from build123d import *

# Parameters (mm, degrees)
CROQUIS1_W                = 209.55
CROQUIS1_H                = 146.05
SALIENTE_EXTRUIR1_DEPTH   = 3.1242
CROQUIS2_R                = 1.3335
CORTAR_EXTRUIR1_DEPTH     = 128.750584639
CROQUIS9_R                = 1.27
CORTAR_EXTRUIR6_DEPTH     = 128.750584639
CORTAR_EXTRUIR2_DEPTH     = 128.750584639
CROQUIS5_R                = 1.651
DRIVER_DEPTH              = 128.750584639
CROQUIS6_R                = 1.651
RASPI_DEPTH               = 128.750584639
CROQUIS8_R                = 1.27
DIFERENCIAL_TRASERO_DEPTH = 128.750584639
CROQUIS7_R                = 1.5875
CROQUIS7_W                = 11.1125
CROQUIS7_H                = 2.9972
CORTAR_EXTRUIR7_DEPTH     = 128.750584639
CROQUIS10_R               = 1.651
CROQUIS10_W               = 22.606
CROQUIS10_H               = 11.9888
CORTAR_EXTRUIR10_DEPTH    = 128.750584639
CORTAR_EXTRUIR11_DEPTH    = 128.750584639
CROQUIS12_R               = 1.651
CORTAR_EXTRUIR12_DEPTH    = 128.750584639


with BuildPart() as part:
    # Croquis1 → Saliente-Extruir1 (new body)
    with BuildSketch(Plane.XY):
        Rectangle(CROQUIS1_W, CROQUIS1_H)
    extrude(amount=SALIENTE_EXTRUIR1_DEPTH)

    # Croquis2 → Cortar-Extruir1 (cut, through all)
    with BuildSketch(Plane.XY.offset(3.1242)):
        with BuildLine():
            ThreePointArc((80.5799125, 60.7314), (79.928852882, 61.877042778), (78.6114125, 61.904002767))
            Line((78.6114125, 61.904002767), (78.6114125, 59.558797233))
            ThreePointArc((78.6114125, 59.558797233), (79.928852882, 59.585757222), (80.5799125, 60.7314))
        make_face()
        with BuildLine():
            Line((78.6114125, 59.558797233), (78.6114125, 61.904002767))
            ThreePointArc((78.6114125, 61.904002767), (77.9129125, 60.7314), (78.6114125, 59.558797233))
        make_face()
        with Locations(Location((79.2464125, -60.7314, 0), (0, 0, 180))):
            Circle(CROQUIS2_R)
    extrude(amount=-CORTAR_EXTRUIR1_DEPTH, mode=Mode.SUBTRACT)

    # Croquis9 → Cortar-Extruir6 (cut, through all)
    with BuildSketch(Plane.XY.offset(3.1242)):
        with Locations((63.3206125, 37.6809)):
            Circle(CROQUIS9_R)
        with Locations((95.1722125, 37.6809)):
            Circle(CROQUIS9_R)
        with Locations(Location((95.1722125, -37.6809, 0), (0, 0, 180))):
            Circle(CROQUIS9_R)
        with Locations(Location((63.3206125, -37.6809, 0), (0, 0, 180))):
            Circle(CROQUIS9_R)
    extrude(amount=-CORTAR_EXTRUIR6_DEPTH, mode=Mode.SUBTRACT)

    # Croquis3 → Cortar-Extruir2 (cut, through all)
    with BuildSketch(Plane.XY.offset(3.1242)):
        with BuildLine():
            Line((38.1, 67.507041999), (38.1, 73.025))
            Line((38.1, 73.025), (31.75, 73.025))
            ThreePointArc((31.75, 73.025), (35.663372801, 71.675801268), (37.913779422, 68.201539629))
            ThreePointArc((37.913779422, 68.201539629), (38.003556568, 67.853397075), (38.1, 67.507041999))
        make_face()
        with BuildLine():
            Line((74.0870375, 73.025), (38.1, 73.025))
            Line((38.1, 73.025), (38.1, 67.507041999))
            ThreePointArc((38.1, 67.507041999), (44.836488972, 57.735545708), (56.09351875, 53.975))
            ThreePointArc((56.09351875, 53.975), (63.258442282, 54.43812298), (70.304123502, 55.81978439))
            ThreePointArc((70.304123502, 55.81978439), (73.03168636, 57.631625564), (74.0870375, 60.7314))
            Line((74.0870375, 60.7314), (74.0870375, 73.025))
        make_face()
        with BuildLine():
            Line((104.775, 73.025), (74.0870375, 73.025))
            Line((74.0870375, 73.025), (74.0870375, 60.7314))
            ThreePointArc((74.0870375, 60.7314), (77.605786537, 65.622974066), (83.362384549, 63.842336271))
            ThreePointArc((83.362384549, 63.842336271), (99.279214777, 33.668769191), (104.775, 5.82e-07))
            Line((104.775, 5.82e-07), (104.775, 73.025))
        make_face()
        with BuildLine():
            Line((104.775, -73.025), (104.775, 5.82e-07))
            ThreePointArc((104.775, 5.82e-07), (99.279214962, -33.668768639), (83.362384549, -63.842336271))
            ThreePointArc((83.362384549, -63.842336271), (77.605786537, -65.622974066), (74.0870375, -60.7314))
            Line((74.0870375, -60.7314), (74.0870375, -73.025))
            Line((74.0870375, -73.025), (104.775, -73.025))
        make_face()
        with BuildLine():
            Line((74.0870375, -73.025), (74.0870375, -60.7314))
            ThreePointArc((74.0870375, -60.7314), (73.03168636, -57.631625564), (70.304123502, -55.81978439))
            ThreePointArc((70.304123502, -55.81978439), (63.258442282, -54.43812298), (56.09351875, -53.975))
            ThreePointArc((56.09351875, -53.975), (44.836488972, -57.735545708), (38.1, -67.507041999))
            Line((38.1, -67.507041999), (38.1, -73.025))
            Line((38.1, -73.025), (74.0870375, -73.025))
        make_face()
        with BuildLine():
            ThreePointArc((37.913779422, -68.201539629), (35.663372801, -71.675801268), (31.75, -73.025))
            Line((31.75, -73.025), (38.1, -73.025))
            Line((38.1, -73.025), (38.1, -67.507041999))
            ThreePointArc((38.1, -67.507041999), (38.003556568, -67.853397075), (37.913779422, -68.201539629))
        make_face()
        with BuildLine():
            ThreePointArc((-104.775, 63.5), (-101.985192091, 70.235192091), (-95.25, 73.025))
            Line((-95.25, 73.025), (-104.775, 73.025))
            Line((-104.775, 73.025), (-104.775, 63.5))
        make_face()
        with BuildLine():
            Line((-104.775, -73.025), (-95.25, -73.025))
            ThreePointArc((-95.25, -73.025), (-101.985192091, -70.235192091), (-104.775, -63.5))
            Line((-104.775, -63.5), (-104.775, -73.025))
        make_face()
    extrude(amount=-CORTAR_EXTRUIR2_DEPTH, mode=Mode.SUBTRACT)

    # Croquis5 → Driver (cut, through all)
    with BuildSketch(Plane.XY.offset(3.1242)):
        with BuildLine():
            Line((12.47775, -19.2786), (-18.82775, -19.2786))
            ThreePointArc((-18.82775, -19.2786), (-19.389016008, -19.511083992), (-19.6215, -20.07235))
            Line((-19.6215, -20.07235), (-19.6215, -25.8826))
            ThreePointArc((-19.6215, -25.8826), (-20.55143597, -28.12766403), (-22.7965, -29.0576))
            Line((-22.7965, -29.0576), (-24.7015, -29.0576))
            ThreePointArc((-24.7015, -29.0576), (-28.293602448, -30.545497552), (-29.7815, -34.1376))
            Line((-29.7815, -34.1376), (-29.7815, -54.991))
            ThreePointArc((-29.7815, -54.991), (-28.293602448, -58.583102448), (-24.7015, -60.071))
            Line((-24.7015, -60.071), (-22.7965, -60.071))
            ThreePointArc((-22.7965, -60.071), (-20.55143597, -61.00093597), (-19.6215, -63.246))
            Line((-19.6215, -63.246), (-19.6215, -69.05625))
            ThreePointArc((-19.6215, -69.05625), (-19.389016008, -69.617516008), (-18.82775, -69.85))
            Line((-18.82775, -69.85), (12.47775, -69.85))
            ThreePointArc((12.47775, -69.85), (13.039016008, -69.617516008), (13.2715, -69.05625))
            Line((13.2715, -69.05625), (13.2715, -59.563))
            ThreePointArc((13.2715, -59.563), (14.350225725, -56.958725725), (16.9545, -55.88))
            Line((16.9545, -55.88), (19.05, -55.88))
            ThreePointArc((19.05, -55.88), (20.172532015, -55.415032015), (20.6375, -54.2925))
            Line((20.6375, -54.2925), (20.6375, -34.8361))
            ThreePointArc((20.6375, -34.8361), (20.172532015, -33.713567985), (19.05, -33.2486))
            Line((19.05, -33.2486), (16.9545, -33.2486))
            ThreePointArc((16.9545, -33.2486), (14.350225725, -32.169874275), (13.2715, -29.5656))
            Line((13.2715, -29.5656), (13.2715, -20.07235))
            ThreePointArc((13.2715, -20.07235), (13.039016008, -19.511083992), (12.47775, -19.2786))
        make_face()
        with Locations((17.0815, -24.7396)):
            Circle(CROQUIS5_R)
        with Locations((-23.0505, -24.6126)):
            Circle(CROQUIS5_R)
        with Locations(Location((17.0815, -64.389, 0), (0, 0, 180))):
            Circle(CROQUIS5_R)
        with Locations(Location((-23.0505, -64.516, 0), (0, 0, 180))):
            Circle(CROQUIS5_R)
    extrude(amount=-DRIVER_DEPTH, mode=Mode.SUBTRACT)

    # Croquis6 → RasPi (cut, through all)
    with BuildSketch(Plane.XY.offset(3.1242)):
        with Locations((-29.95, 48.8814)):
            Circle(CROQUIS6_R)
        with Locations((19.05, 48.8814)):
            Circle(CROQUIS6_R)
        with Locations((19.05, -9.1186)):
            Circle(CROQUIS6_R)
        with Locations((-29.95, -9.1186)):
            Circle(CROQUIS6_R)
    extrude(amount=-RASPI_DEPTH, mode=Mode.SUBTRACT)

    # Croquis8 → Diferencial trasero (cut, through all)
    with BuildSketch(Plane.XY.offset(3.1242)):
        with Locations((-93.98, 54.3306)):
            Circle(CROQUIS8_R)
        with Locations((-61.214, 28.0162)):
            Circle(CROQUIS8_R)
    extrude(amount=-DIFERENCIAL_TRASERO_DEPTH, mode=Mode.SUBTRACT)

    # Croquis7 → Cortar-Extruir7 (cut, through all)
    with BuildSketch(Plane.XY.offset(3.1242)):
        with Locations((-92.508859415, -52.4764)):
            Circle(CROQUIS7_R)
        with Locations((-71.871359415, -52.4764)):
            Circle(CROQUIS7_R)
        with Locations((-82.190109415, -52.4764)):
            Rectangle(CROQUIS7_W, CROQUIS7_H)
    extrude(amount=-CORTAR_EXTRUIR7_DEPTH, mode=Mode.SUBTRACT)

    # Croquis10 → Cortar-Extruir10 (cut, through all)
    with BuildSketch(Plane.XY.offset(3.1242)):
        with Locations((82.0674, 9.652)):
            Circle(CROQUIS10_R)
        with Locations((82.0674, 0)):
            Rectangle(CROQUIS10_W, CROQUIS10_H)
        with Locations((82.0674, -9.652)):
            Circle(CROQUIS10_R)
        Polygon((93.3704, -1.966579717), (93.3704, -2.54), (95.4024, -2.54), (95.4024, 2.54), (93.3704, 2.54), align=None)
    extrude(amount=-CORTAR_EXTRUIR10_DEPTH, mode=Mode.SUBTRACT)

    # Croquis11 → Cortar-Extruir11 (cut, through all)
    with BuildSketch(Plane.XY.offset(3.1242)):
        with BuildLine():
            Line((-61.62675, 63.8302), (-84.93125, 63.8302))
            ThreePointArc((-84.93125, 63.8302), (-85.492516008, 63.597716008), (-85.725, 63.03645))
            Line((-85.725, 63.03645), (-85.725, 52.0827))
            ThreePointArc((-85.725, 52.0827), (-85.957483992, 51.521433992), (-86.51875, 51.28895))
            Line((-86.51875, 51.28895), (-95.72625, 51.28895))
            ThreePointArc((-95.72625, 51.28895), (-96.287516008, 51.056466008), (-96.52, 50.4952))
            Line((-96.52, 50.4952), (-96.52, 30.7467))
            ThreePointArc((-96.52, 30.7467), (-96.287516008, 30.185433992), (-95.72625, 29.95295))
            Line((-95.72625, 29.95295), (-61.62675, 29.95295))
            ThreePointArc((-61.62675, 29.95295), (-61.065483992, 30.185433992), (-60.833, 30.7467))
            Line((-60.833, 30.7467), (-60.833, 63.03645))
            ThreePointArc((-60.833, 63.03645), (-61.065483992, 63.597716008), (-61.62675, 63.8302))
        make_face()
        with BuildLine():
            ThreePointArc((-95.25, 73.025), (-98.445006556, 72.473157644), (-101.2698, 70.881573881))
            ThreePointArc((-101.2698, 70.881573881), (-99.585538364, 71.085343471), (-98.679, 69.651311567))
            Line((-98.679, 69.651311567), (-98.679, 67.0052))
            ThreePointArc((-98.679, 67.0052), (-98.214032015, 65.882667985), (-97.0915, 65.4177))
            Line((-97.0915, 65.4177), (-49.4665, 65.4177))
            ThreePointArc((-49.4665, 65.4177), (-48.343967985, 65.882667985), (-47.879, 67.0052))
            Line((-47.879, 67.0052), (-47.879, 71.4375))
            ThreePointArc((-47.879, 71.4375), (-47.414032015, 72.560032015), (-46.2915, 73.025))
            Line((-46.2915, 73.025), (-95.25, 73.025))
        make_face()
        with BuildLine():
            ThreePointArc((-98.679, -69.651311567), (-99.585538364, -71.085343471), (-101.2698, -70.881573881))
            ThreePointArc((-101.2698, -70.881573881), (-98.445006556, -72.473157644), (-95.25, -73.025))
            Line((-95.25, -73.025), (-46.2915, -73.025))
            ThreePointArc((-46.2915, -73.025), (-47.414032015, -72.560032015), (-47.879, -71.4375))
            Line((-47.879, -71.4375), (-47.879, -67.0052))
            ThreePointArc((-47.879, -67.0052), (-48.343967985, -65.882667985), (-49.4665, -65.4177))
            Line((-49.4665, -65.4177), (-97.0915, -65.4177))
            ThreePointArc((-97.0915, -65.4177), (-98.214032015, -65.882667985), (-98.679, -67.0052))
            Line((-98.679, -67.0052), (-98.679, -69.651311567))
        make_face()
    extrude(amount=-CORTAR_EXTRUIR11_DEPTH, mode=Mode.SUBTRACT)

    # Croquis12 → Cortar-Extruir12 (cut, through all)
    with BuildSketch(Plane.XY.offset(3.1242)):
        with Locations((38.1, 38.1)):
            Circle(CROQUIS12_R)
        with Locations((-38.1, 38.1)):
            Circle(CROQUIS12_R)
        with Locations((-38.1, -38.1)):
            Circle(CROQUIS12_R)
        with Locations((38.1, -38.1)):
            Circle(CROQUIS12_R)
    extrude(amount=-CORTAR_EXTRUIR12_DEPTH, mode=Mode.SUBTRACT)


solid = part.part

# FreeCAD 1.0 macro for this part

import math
import FreeCAD as App
import Part
import Sketcher
from FreeCAD import Vector
Q = App.Units.Quantity

doc = App.newDocument("Part")
body = doc.addObject("PartDesign::Body", "Body")

# Sketch on XY plane
sketch1 = body.newObject("Sketcher::SketchObject", "Sketch")
sketch1.AttachmentSupport = (doc.getObject("XY_Plane"), [""])
sketch1.MapMode = "FlatFace"
sketch1.addGeometry(Part.LineSegment(Vector(-105, 73, 0), Vector(-105, -73, 0)), False)
sketch1.addGeometry(Part.LineSegment(Vector(-105, -73, 0), Vector(105, -73, 0)), False)
sketch1.addGeometry(Part.LineSegment(Vector(105, -73, 0), Vector(105, 73, 0)), False)
sketch1.addGeometry(Part.LineSegment(Vector(105, 73, 0), Vector(-105, 73, 0)), False)
sketch1.addConstraint(Sketcher.Constraint("Coincident", 0, 2, 1, 1))
sketch1.addConstraint(Sketcher.Constraint("Coincident", 1, 2, 2, 1))
sketch1.addConstraint(Sketcher.Constraint("Coincident", 2, 2, 3, 1))
sketch1.addConstraint(Sketcher.Constraint("Coincident", 3, 2, 0, 1))
sketch1.addConstraint(Sketcher.Constraint("Vertical", 0))
sketch1.addConstraint(Sketcher.Constraint("Horizontal", 1))
sketch1.addConstraint(Sketcher.Constraint("Vertical", 2))
sketch1.addConstraint(Sketcher.Constraint("Horizontal", 3))
sketch1.addConstraint(Sketcher.Constraint("Symmetric", 0, 2, 2, 2, -1, 1))
sketch1.addConstraint(Sketcher.Constraint("DistanceX", 1, 1, 1, 2, Q("8.25 in")))
sketch1.addConstraint(Sketcher.Constraint("DistanceY", 0, 2, 0, 1, Q("5.75 in")))
pad1 = body.newObject("PartDesign::Pad", "Pad")
pad1.Profile = sketch1
pad1.Length = Q("0.123 in")

# Sketch on XY plane
sketch2 = body.newObject("Sketcher::SketchObject", "Sketch001")
sketch2.AttachmentSupport = (doc.getObject("XY_Plane"), [""])
sketch2.MapMode = "FlatFace"
sketch2.AttachmentOffset = App.Placement(Vector(0, 0, 0.123 * 25.4), App.Rotation())
sketch2.addGeometry(Part.ArcOfCircle(Part.Circle(Vector(79.2, 60.7, 0), Vector(0, 0, 1), 1.3), math.radians(0), math.radians(118)), False)
sketch2.addGeometry(Part.ArcOfCircle(Part.Circle(Vector(79.2, 60.7, 0), Vector(0, 0, 1), 1.3), math.radians(118), math.radians(242)), False)
sketch2.addGeometry(Part.ArcOfCircle(Part.Circle(Vector(79.2, 60.7, 0), Vector(0, 0, 1), 1.3), math.radians(-118), math.radians(0)), False)
sketch2.addGeometry(Part.Circle(Vector(79.2, -60.7, 0), Vector(0, 0, 1), 1.3), False)
sketch2.addConstraint(Sketcher.Constraint("Tangent", 0, 2, 1, 1))
sketch2.addConstraint(Sketcher.Constraint("Tangent", 1, 2, 2, 1))
sketch2.addConstraint(Sketcher.Constraint("Tangent", 2, 2, 0, 1))
sketch2.addConstraint(Sketcher.Constraint("Equal", 2, 3))
sketch2.addConstraint(Sketcher.Constraint("Symmetric", 0, 3, 3, 3, -1))
sketch2.addConstraint(Sketcher.Constraint("Horizontal", 1, 3, 2, 2))
sketch2.addConstraint(Sketcher.Constraint("Vertical", 0, 2, 1, 2))
sketch2.addConstraint(Sketcher.Constraint("Diameter", 3, Q("0.105 in")))
sketch2.addConstraint(Sketcher.Constraint("DistanceY", -1, 1, 0, 3, Q("2.391 in")))
sketch2.addConstraint(Sketcher.Constraint("DistanceX", 0, 2, 1, 3, Q("0.025 in")))
sketch2.addConstraint(Sketcher.Constraint("DistanceX", -1, 1, 0, 3, 79.246413))
pocket1 = body.newObject("PartDesign::Pocket", "Pocket")
pocket1.Profile = sketch2
pocket1.Type = "ThroughAll"

# Sketch on XY plane
sketch3 = body.newObject("Sketcher::SketchObject", "Sketch002")
sketch3.AttachmentSupport = (doc.getObject("XY_Plane"), [""])
sketch3.MapMode = "FlatFace"
sketch3.AttachmentOffset = App.Placement(Vector(0, 0, 0.123 * 25.4), App.Rotation())
sketch3.addGeometry(Part.Circle(Vector(63.3, 37.7, 0), Vector(0, 0, 1), 1.3), False)
sketch3.addGeometry(Part.Circle(Vector(95.2, 37.7, 0), Vector(0, 0, 1), 1.3), False)
sketch3.addGeometry(Part.Circle(Vector(95.2, -37.7, 0), Vector(0, 0, 1), 1.3), False)
sketch3.addGeometry(Part.Circle(Vector(63.3, -37.7, 0), Vector(0, 0, 1), 1.3), False)
sketch3.addConstraint(Sketcher.Constraint("Equal", 0, 1))
sketch3.addConstraint(Sketcher.Constraint("Equal", 1, 2))
sketch3.addConstraint(Sketcher.Constraint("Equal", 2, 3))
sketch3.addConstraint(Sketcher.Constraint("Symmetric", 1, 3, 2, 3, -1))
sketch3.addConstraint(Sketcher.Constraint("Symmetric", 0, 3, 3, 3, -1))
sketch3.addConstraint(Sketcher.Constraint("Horizontal", 0, 3, 1, 3))
sketch3.addConstraint(Sketcher.Constraint("Diameter", 0, Q("0.1 in")))
sketch3.addConstraint(Sketcher.Constraint("DistanceX", 0, 3, 1, 3, Q("1.254 in")))
sketch3.addConstraint(Sketcher.Constraint("DistanceY", 2, 3, 1, 3, Q("2.967 in")))
sketch3.addConstraint(Sketcher.Constraint("DistanceX", -1, 1, 0, 3, 63.320613))
pocket2 = body.newObject("PartDesign::Pocket", "Pocket001")
pocket2.Profile = sketch3
pocket2.Type = "ThroughAll"

# Sketch on XY plane
sketch4 = body.newObject("Sketcher::SketchObject", "Sketch003")
sketch4.AttachmentSupport = (doc.getObject("XY_Plane"), [""])
sketch4.MapMode = "FlatFace"
sketch4.AttachmentOffset = App.Placement(Vector(0, 0, 0.123 * 25.4), App.Rotation())
sketch4.addGeometry(Part.ArcOfCircle(Part.Circle(Vector(31.8, 66.7, 0), Vector(0, 0, 1), 6.3), math.radians(14), math.radians(90)), False)
sketch4.addGeometry(Part.ArcOfCircle(Part.Circle(Vector(56.1, 72.7, 0), Vector(0, 0, 1), 18.7), math.radians(-166.09), math.radians(-163.89)), False)
sketch4.addGeometry(Part.ArcOfCircle(Part.Circle(Vector(56.1, 72.7, 0), Vector(0, 0, 1), 18.7), math.radians(-164), math.radians(-90)), False)
sketch4.addGeometry(Part.ArcOfCircle(Part.Circle(Vector(56.1, 109.6, 0), Vector(0, 0, 1), 55.7), math.radians(-90), math.radians(-75.21)), False)
sketch4.addGeometry(Part.ArcOfCircle(Part.Circle(Vector(69, 60.7, 0), Vector(0, 0, 1), 5.1), math.radians(-75), math.radians(0)), False)
sketch4.addGeometry(Part.ArcOfCircle(Part.Circle(Vector(79.2, 60.7, 0), Vector(0, 0, 1), 5.2), math.radians(37), math.radians(180)), False)
sketch4.addGeometry(Part.ArcOfCircle(Part.Circle(Vector(-1.1, 0, 0), Vector(0, 0, 1), 105.9), math.radians(0), math.radians(37)), False)
sketch4.addGeometry(Part.LineSegment(Vector(104.8, 0, 0), Vector(104.8, 73, 0)), False)
sketch4.addGeometry(Part.LineSegment(Vector(104.8, 73, 0), Vector(31.8, 73, 0)), False)
sketch4.addGeometry(Part.LineSegment(Vector(104.8, -73, 0), Vector(104.8, 0, 0)), False)
sketch4.addGeometry(Part.ArcOfCircle(Part.Circle(Vector(-1.1, 0, 0), Vector(0, 0, 1), 105.9), math.radians(-37), math.radians(0)), False)
sketch4.addGeometry(Part.ArcOfCircle(Part.Circle(Vector(79.2, -60.7, 0), Vector(0, 0, 1), 5.2), math.radians(180), math.radians(323)), False)
sketch4.addGeometry(Part.ArcOfCircle(Part.Circle(Vector(69, -60.7, 0), Vector(0, 0, 1), 5.1), math.radians(0), math.radians(75)), False)
sketch4.addGeometry(Part.ArcOfCircle(Part.Circle(Vector(56.1, -109.6, 0), Vector(0, 0, 1), 55.7), math.radians(75.21), math.radians(90)), False)
sketch4.addGeometry(Part.ArcOfCircle(Part.Circle(Vector(56.1, -72.7, 0), Vector(0, 0, 1), 18.7), math.radians(90), math.radians(164)), False)
sketch4.addGeometry(Part.ArcOfCircle(Part.Circle(Vector(56.1, -72.7, 0), Vector(0, 0, 1), 18.7), math.radians(163.89), math.radians(166.09)), False)
sketch4.addGeometry(Part.ArcOfCircle(Part.Circle(Vector(31.8, -66.7, 0), Vector(0, 0, 1), 6.3), math.radians(-90), math.radians(-14)), False)
sketch4.addGeometry(Part.LineSegment(Vector(31.8, -73, 0), Vector(104.8, -73, 0)), False)
sketch4.addGeometry(Part.ArcOfCircle(Part.Circle(Vector(-95.3, 63.5, 0), Vector(0, 0, 1), 9.5), math.radians(90), math.radians(180)), False)
sketch4.addGeometry(Part.LineSegment(Vector(-95.2, 73, 0), Vector(-104.8, 73, 0)), False)
sketch4.addGeometry(Part.LineSegment(Vector(-104.8, 73, 0), Vector(-104.8, 63.5, 0)), False)
sketch4.addGeometry(Part.LineSegment(Vector(-104.8, -73, 0), Vector(-95.2, -73, 0)), False)
sketch4.addGeometry(Part.ArcOfCircle(Part.Circle(Vector(-95.3, -63.5, 0), Vector(0, 0, 1), 9.5), math.radians(180), math.radians(270)), False)
sketch4.addGeometry(Part.LineSegment(Vector(-104.8, -63.5, 0), Vector(-104.8, -73, 0)), False)
sketch4.addConstraint(Sketcher.Constraint("Tangent", 0, 1, 1, 1))
sketch4.addConstraint(Sketcher.Constraint("Tangent", 1, 2, 2, 1))
sketch4.addConstraint(Sketcher.Constraint("Tangent", 2, 2, 3, 1))
sketch4.addConstraint(Sketcher.Constraint("Tangent", 3, 2, 4, 1))
sketch4.addConstraint(Sketcher.Constraint("Tangent", 4, 2, 5, 2))
sketch4.addConstraint(Sketcher.Constraint("Tangent", 5, 1, 6, 2))
sketch4.addConstraint(Sketcher.Constraint("Tangent", 6, 1, 7, 1))
sketch4.addConstraint(Sketcher.Constraint("Coincident", 7, 2, 8, 1))
sketch4.addConstraint(Sketcher.Constraint("Tangent", 8, 2, 0, 2))
sketch4.addConstraint(Sketcher.Constraint("Tangent", 9, 2, 10, 2))
sketch4.addConstraint(Sketcher.Constraint("Tangent", 10, 1, 11, 2))
sketch4.addConstraint(Sketcher.Constraint("Tangent", 11, 1, 12, 1))
sketch4.addConstraint(Sketcher.Constraint("Tangent", 12, 2, 13, 1))
sketch4.addConstraint(Sketcher.Constraint("Tangent", 13, 2, 14, 1))
sketch4.addConstraint(Sketcher.Constraint("Tangent", 14, 2, 15, 1))
sketch4.addConstraint(Sketcher.Constraint("Tangent", 15, 2, 16, 2))
sketch4.addConstraint(Sketcher.Constraint("Tangent", 16, 1, 17, 1))
sketch4.addConstraint(Sketcher.Constraint("Coincident", 17, 2, 9, 1))
sketch4.addConstraint(Sketcher.Constraint("Tangent", 18, 1, 19, 1))
sketch4.addConstraint(Sketcher.Constraint("Coincident", 19, 2, 20, 1))
sketch4.addConstraint(Sketcher.Constraint("Tangent", 20, 2, 18, 2))
sketch4.addConstraint(Sketcher.Constraint("Tangent", 21, 2, 22, 2))
sketch4.addConstraint(Sketcher.Constraint("Tangent", 22, 1, 23, 1))
sketch4.addConstraint(Sketcher.Constraint("Coincident", 23, 2, 21, 1))
sketch4.addConstraint(Sketcher.Constraint("Vertical", 7))
sketch4.addConstraint(Sketcher.Constraint("Horizontal", 8))
sketch4.addConstraint(Sketcher.Constraint("Vertical", 9))
sketch4.addConstraint(Sketcher.Constraint("Horizontal", 17))
sketch4.addConstraint(Sketcher.Constraint("Horizontal", 19))
sketch4.addConstraint(Sketcher.Constraint("Vertical", 20))
sketch4.addConstraint(Sketcher.Constraint("Horizontal", 21))
sketch4.addConstraint(Sketcher.Constraint("Vertical", 23))
sketch4.addConstraint(Sketcher.Constraint("Coincident", 10, 3, 6, 3))
sketch4.addConstraint(Sketcher.Constraint("Equal", 1, 2))
sketch4.addConstraint(Sketcher.Constraint("Equal", 6, 10))
sketch4.addConstraint(Sketcher.Constraint("Equal", 5, 11))
sketch4.addConstraint(Sketcher.Constraint("Equal", 4, 12))
sketch4.addConstraint(Sketcher.Constraint("Equal", 3, 13))
sketch4.addConstraint(Sketcher.Constraint("Equal", 2, 14))
sketch4.addConstraint(Sketcher.Constraint("Equal", 14, 15))
sketch4.addConstraint(Sketcher.Constraint("Equal", 0, 16))
sketch4.addConstraint(Sketcher.Constraint("Equal", 18, 22))
sketch4.addConstraint(Sketcher.Constraint("Symmetric", 17, 2, 19, 2, -1, 1))
sketch4.addConstraint(Sketcher.Constraint("Symmetric", 7, 2, 23, 2, -1, 1))
sketch4.addConstraint(Sketcher.Constraint("Symmetric", 5, 3, 11, 3, -1))
sketch4.addConstraint(Sketcher.Constraint("Symmetric", 3, 3, 13, 3, -1))
sketch4.addConstraint(Sketcher.Constraint("Symmetric", 0, 3, 16, 3, -1))
sketch4.addConstraint(Sketcher.Constraint("Horizontal", 4, 3, 5, 3))
sketch4.addConstraint(Sketcher.Constraint("Vertical", 2, 3, 3, 3))
sketch4.addConstraint(Sketcher.Constraint("Vertical", 1, 2, 14, 2))
sketch4.addConstraint(Sketcher.Constraint("Equal", 17, 7))
sketch4.addConstraint(Sketcher.Constraint("Radius", 4, Q("0.2 in")))
sketch4.addConstraint(Sketcher.Constraint("Radius", 0, Q("0.25 in")))
sketch4.addConstraint(Sketcher.Constraint("Radius", 5, Q("0.203125 in")))
sketch4.addConstraint(Sketcher.Constraint("Radius", 18, Q("0.375 in")))
sketch4.addConstraint(Sketcher.Constraint("DistanceX", 18, 3, 0, 3, Q("5 in")))
sketch4.addConstraint(Sketcher.Constraint("DistanceY", 22, 3, 18, 3, Q("5 in")))
sketch4.addConstraint(Sketcher.Constraint("DistanceX", -1, 1, 1, 2, Q("1.5 in")))
sketch4.addConstraint(Sketcher.Constraint("Radius", 6, 105.8802))
sketch4.addConstraint(Sketcher.Constraint("DistanceY", -1, 1, 4, 3, Q("2.391 in")))
sketch4.addConstraint(Sketcher.Constraint("DistanceY", -1, 1, 2, 2, Q("2.125 in")))
sketch4.addConstraint(Sketcher.Constraint("DistanceY", -1, 1, 0, 1, Q("2.6851 in")))
pocket3 = body.newObject("PartDesign::Pocket", "Pocket002")
pocket3.Profile = sketch4
pocket3.Type = "ThroughAll"

# Sketch on XY plane
sketch5 = body.newObject("Sketcher::SketchObject", "Sketch004")
sketch5.AttachmentSupport = (doc.getObject("XY_Plane"), [""])
sketch5.MapMode = "FlatFace"
sketch5.AttachmentOffset = App.Placement(Vector(0, 0, 0.123 * 25.4), App.Rotation())
sketch5.addGeometry(Part.LineSegment(Vector(12.5, -19.3, 0), Vector(-18.8, -19.3, 0)), False)
sketch5.addGeometry(Part.ArcOfCircle(Part.Circle(Vector(-18.8, -20.1, 0), Vector(0, 0, 1), 0.8), math.radians(90), math.radians(180)), False)
sketch5.addGeometry(Part.LineSegment(Vector(-19.6, -20.1, 0), Vector(-19.6, -25.9, 0)), False)
sketch5.addGeometry(Part.ArcOfCircle(Part.Circle(Vector(-22.8, -25.9, 0), Vector(0, 0, 1), 3.2), math.radians(-90), math.radians(0)), False)
sketch5.addGeometry(Part.LineSegment(Vector(-22.8, -29.1, 0), Vector(-24.7, -29.1, 0)), False)
sketch5.addGeometry(Part.ArcOfCircle(Part.Circle(Vector(-24.7, -34.1, 0), Vector(0, 0, 1), 5.1), math.radians(90), math.radians(180)), False)
sketch5.addGeometry(Part.LineSegment(Vector(-29.8, -34.1, 0), Vector(-29.8, -55, 0)), False)
sketch5.addGeometry(Part.ArcOfCircle(Part.Circle(Vector(-24.7, -55, 0), Vector(0, 0, 1), 5.1), math.radians(-180), math.radians(-90)), False)
sketch5.addGeometry(Part.LineSegment(Vector(-24.7, -60.1, 0), Vector(-22.8, -60.1, 0)), False)
sketch5.addGeometry(Part.ArcOfCircle(Part.Circle(Vector(-22.8, -63.2, 0), Vector(0, 0, 1), 3.2), math.radians(0), math.radians(90)), False)
sketch5.addGeometry(Part.LineSegment(Vector(-19.6, -63.2, 0), Vector(-19.6, -69.1, 0)), False)
sketch5.addGeometry(Part.ArcOfCircle(Part.Circle(Vector(-18.8, -69.1, 0), Vector(0, 0, 1), 0.8), math.radians(180), math.radians(270)), False)
sketch5.addGeometry(Part.LineSegment(Vector(-18.8, -69.8, 0), Vector(12.5, -69.8, 0)), False)
sketch5.addGeometry(Part.ArcOfCircle(Part.Circle(Vector(12.5, -69.1, 0), Vector(0, 0, 1), 0.8), math.radians(-90), math.radians(0)), False)
sketch5.addGeometry(Part.LineSegment(Vector(13.3, -69.1, 0), Vector(13.3, -59.6, 0)), False)
sketch5.addGeometry(Part.ArcOfCircle(Part.Circle(Vector(17, -59.6, 0), Vector(0, 0, 1), 3.7), math.radians(90), math.radians(180)), False)
sketch5.addGeometry(Part.LineSegment(Vector(17, -55.9, 0), Vector(19.1, -55.9, 0)), False)
sketch5.addGeometry(Part.ArcOfCircle(Part.Circle(Vector(19.1, -54.3, 0), Vector(0, 0, 1), 1.6), math.radians(-90), math.radians(0)), False)
sketch5.addGeometry(Part.LineSegment(Vector(20.6, -54.3, 0), Vector(20.6, -34.8, 0)), False)
sketch5.addGeometry(Part.ArcOfCircle(Part.Circle(Vector(19.1, -34.8, 0), Vector(0, 0, 1), 1.6), math.radians(0), math.radians(90)), False)
sketch5.addGeometry(Part.LineSegment(Vector(19.1, -33.2, 0), Vector(17, -33.2, 0)), False)
sketch5.addGeometry(Part.ArcOfCircle(Part.Circle(Vector(17, -29.6, 0), Vector(0, 0, 1), 3.7), math.radians(180), math.radians(270)), False)
sketch5.addGeometry(Part.LineSegment(Vector(13.3, -29.6, 0), Vector(13.3, -20.1, 0)), False)
sketch5.addGeometry(Part.ArcOfCircle(Part.Circle(Vector(12.5, -20.1, 0), Vector(0, 0, 1), 0.8), math.radians(0), math.radians(90)), False)
sketch5.addGeometry(Part.Circle(Vector(17.1, -24.7, 0), Vector(0, 0, 1), 1.7), False)
sketch5.addGeometry(Part.Circle(Vector(-23.1, -24.6, 0), Vector(0, 0, 1), 1.7), False)
sketch5.addGeometry(Part.Circle(Vector(17.1, -64.4, 0), Vector(0, 0, 1), 1.7), False)
sketch5.addGeometry(Part.Circle(Vector(-23.1, -64.5, 0), Vector(0, 0, 1), 1.7), False)
sketch5.addConstraint(Sketcher.Constraint("Tangent", 0, 2, 1, 1))
sketch5.addConstraint(Sketcher.Constraint("Tangent", 1, 2, 2, 1))
sketch5.addConstraint(Sketcher.Constraint("Tangent", 2, 2, 3, 2))
sketch5.addConstraint(Sketcher.Constraint("Tangent", 3, 1, 4, 1))
sketch5.addConstraint(Sketcher.Constraint("Tangent", 4, 2, 5, 1))
sketch5.addConstraint(Sketcher.Constraint("Tangent", 5, 2, 6, 1))
sketch5.addConstraint(Sketcher.Constraint("Tangent", 6, 2, 7, 1))
sketch5.addConstraint(Sketcher.Constraint("Tangent", 7, 2, 8, 1))
sketch5.addConstraint(Sketcher.Constraint("Tangent", 8, 2, 9, 2))
sketch5.addConstraint(Sketcher.Constraint("Tangent", 9, 1, 10, 1))
sketch5.addConstraint(Sketcher.Constraint("Tangent", 10, 2, 11, 1))
sketch5.addConstraint(Sketcher.Constraint("Tangent", 11, 2, 12, 1))
sketch5.addConstraint(Sketcher.Constraint("Tangent", 12, 2, 13, 1))
sketch5.addConstraint(Sketcher.Constraint("Tangent", 13, 2, 14, 1))
sketch5.addConstraint(Sketcher.Constraint("Tangent", 14, 2, 15, 2))
sketch5.addConstraint(Sketcher.Constraint("Tangent", 15, 1, 16, 1))
sketch5.addConstraint(Sketcher.Constraint("Tangent", 16, 2, 17, 1))
sketch5.addConstraint(Sketcher.Constraint("Tangent", 17, 2, 18, 1))
sketch5.addConstraint(Sketcher.Constraint("Tangent", 18, 2, 19, 1))
sketch5.addConstraint(Sketcher.Constraint("Tangent", 19, 2, 20, 1))
sketch5.addConstraint(Sketcher.Constraint("Tangent", 20, 2, 21, 2))
sketch5.addConstraint(Sketcher.Constraint("Tangent", 21, 1, 22, 1))
sketch5.addConstraint(Sketcher.Constraint("Tangent", 22, 2, 23, 1))
sketch5.addConstraint(Sketcher.Constraint("Tangent", 23, 2, 0, 1))
sketch5.addConstraint(Sketcher.Constraint("Horizontal", 0))
sketch5.addConstraint(Sketcher.Constraint("Vertical", 2))
sketch5.addConstraint(Sketcher.Constraint("Horizontal", 4))
sketch5.addConstraint(Sketcher.Constraint("Vertical", 6))
sketch5.addConstraint(Sketcher.Constraint("Horizontal", 8))
sketch5.addConstraint(Sketcher.Constraint("Vertical", 10))
sketch5.addConstraint(Sketcher.Constraint("Horizontal", 12))
sketch5.addConstraint(Sketcher.Constraint("Vertical", 14))
sketch5.addConstraint(Sketcher.Constraint("Horizontal", 16))
sketch5.addConstraint(Sketcher.Constraint("Vertical", 18))
sketch5.addConstraint(Sketcher.Constraint("Horizontal", 20))
sketch5.addConstraint(Sketcher.Constraint("Vertical", 22))
sketch5.addConstraint(Sketcher.Constraint("Equal", 5, 7))
sketch5.addConstraint(Sketcher.Constraint("Equal", 3, 9))
sketch5.addConstraint(Sketcher.Constraint("Equal", 1, 11))
sketch5.addConstraint(Sketcher.Constraint("Equal", 11, 13))
sketch5.addConstraint(Sketcher.Constraint("Equal", 17, 19))
sketch5.addConstraint(Sketcher.Constraint("Equal", 15, 21))
sketch5.addConstraint(Sketcher.Constraint("Equal", 13, 23))
sketch5.addConstraint(Sketcher.Constraint("Equal", 24, 25))
sketch5.addConstraint(Sketcher.Constraint("Equal", 25, 26))
sketch5.addConstraint(Sketcher.Constraint("Equal", 26, 27))
sketch5.addConstraint(Sketcher.Constraint("Vertical", 3, 3, 9, 3))
sketch5.addConstraint(Sketcher.Constraint("Vertical", 15, 3, 21, 3))
sketch5.addConstraint(Sketcher.Constraint("Vertical", 24, 3, 26, 3))
sketch5.addConstraint(Sketcher.Constraint("Vertical", 25, 3, 27, 3))
sketch5.addConstraint(Sketcher.Constraint("Equal", 2, 10))
sketch5.addConstraint(Sketcher.Constraint("Equal", 14, 22))
sketch5.addConstraint(Sketcher.Constraint("Radius", 5, Q("0.2 in")))
sketch5.addConstraint(Sketcher.Constraint("Diameter", 24, Q("0.13 in")))
sketch5.addConstraint(Sketcher.Constraint("Radius", 1, Q("0.03125 in")))
sketch5.addConstraint(Sketcher.Constraint("Radius", 3, Q("0.125 in")))
sketch5.addConstraint(Sketcher.Constraint("Radius", 15, Q("0.145 in")))
sketch5.addConstraint(Sketcher.Constraint("Radius", 17, Q("0.0625 in")))
sketch5.addConstraint(Sketcher.Constraint("DistanceY", 15, 1, -1, 1, Q("2.2 in")))
sketch5.addConstraint(Sketcher.Constraint("DistanceX", 5, 3, 1, 2, Q("0.2 in")))
sketch5.addConstraint(Sketcher.Constraint("DistanceY", 6, 2, 6, 1, Q("0.821 in")))
sketch5.addConstraint(Sketcher.Constraint("DistanceY", 18, 1, 18, 2, Q("0.766 in")))
sketch5.addConstraint(Sketcher.Constraint("DistanceX", -1, 1, 17, 3, Q("0.75 in")))
sketch5.addConstraint(Sketcher.Constraint("DistanceY", 27, 3, -1, 1, Q("2.54 in")))
sketch5.addConstraint(Sketcher.Constraint("DistanceY", 11, 2, -1, 1, Q("2.75 in")))
sketch5.addConstraint(Sketcher.Constraint("DistanceX", 7, 3, 15, 3, Q("1.64 in")))
sketch5.addConstraint(Sketcher.Constraint("DistanceY", 21, 3, 24, 3, Q("0.19 in")))
sketch5.addConstraint(Sketcher.Constraint("DistanceX", 25, 3, 3, 3, Q("0.01 in")))
sketch5.addConstraint(Sketcher.Constraint("DistanceY", 3, 3, 25, 3, Q("0.05 in")))
sketch5.addConstraint(Sketcher.Constraint("DistanceY", 26, 3, 15, 3, Q("0.19 in")))
sketch5.addConstraint(Sketcher.Constraint("DistanceX", 13, 2, 26, 3, Q("0.15 in")))
sketch5.addConstraint(Sketcher.Constraint("DistanceX", 14, 2, 17, 2, Q("0.29 in")))
pocket4 = body.newObject("PartDesign::Pocket", "Pocket003")
pocket4.Profile = sketch5
pocket4.Type = "ThroughAll"

# Sketch on XY plane
sketch6 = body.newObject("Sketcher::SketchObject", "Sketch005")
sketch6.AttachmentSupport = (doc.getObject("XY_Plane"), [""])
sketch6.MapMode = "FlatFace"
sketch6.AttachmentOffset = App.Placement(Vector(0, 0, 0.123 * 25.4), App.Rotation())
sketch6.addGeometry(Part.Circle(Vector(-29.9, 48.9, 0), Vector(0, 0, 1), 1.7), False)
sketch6.addGeometry(Part.Circle(Vector(19.1, 48.9, 0), Vector(0, 0, 1), 1.7), False)
sketch6.addGeometry(Part.Circle(Vector(19.1, -9.1, 0), Vector(0, 0, 1), 1.7), False)
sketch6.addGeometry(Part.Circle(Vector(-29.9, -9.1, 0), Vector(0, 0, 1), 1.7), False)
sketch6.addConstraint(Sketcher.Constraint("Equal", 0, 1))
sketch6.addConstraint(Sketcher.Constraint("Equal", 1, 2))
sketch6.addConstraint(Sketcher.Constraint("Equal", 2, 3))
sketch6.addConstraint(Sketcher.Constraint("Horizontal", 0, 3, 1, 3))
sketch6.addConstraint(Sketcher.Constraint("Horizontal", 2, 3, 3, 3))
sketch6.addConstraint(Sketcher.Constraint("Vertical", 1, 3, 2, 3))
sketch6.addConstraint(Sketcher.Constraint("Vertical", 0, 3, 3, 3))
sketch6.addConstraint(Sketcher.Constraint("Diameter", 0, Q("0.13 in")))
sketch6.addConstraint(Sketcher.Constraint("DistanceX", -1, 1, 1, 3, Q("0.75 in")))
sketch6.addConstraint(Sketcher.Constraint("DistanceY", 2, 3, -1, 1, Q("0.359 in")))
sketch6.addConstraint(Sketcher.Constraint("DistanceX", 0, 3, -1, 1, 29.95))
sketch6.addConstraint(Sketcher.Constraint("DistanceY", -1, 1, 0, 3, 48.8814))
pocket5 = body.newObject("PartDesign::Pocket", "Pocket004")
pocket5.Profile = sketch6
pocket5.Type = "ThroughAll"

# Sketch on XY plane
sketch7 = body.newObject("Sketcher::SketchObject", "Sketch006")
sketch7.AttachmentSupport = (doc.getObject("XY_Plane"), [""])
sketch7.MapMode = "FlatFace"
sketch7.AttachmentOffset = App.Placement(Vector(0, 0, 0.123 * 25.4), App.Rotation())
sketch7.addGeometry(Part.Circle(Vector(-94, 54.3, 0), Vector(0, 0, 1), 1.3), False)
sketch7.addGeometry(Part.Circle(Vector(-61.2, 28, 0), Vector(0, 0, 1), 1.3), False)
sketch7.addConstraint(Sketcher.Constraint("Equal", 0, 1))
sketch7.addConstraint(Sketcher.Constraint("Diameter", 0, Q("0.1 in")))
sketch7.addConstraint(Sketcher.Constraint("DistanceX", 0, 3, -1, 1, Q("3.7 in")))
sketch7.addConstraint(Sketcher.Constraint("DistanceX", 1, 3, -1, 1, Q("2.41 in")))
sketch7.addConstraint(Sketcher.Constraint("DistanceY", -1, 1, 0, 3, Q("2.139 in")))
sketch7.addConstraint(Sketcher.Constraint("DistanceY", -1, 1, 1, 3, Q("1.103 in")))
pocket6 = body.newObject("PartDesign::Pocket", "Pocket005")
pocket6.Profile = sketch7
pocket6.Type = "ThroughAll"

# Sketch on XY plane
sketch8 = body.newObject("Sketcher::SketchObject", "Sketch007")
sketch8.AttachmentSupport = (doc.getObject("XY_Plane"), [""])
sketch8.MapMode = "FlatFace"
sketch8.AttachmentOffset = App.Placement(Vector(0, 0, 0.123 * 25.4), App.Rotation())
sketch8.addGeometry(Part.Circle(Vector(-92.5, -52.5, 0), Vector(0, 0, 1), 1.6), False)
sketch8.addGeometry(Part.Circle(Vector(-71.9, -52.5, 0), Vector(0, 0, 1), 1.6), False)
sketch8.addGeometry(Part.LineSegment(Vector(-87.7, -51, 0), Vector(-87.7, -54, 0)), False)
sketch8.addGeometry(Part.LineSegment(Vector(-87.7, -54, 0), Vector(-76.6, -54, 0)), False)
sketch8.addGeometry(Part.LineSegment(Vector(-76.6, -54, 0), Vector(-76.6, -51, 0)), False)
sketch8.addGeometry(Part.LineSegment(Vector(-76.6, -51, 0), Vector(-87.7, -51, 0)), False)
sketch8.addConstraint(Sketcher.Constraint("Coincident", 2, 2, 3, 1))
sketch8.addConstraint(Sketcher.Constraint("Coincident", 3, 2, 4, 1))
sketch8.addConstraint(Sketcher.Constraint("Coincident", 4, 2, 5, 1))
sketch8.addConstraint(Sketcher.Constraint("Coincident", 5, 2, 2, 1))
sketch8.addConstraint(Sketcher.Constraint("Vertical", 2))
sketch8.addConstraint(Sketcher.Constraint("Horizontal", 3))
sketch8.addConstraint(Sketcher.Constraint("Vertical", 4))
sketch8.addConstraint(Sketcher.Constraint("Horizontal", 5))
sketch8.addConstraint(Sketcher.Constraint("Equal", 0, 1))
sketch8.addConstraint(Sketcher.Constraint("Horizontal", 0, 3, 1, 3))
sketch8.addConstraint(Sketcher.Constraint("Diameter", 0, Q("0.125 in")))
sketch8.addConstraint(Sketcher.Constraint("DistanceX", 3, 1, 3, 2, Q("0.4375 in")))
sketch8.addConstraint(Sketcher.Constraint("DistanceY", 2, 2, 2, 1, Q("0.118 in")))
sketch8.addConstraint(Sketcher.Constraint("DistanceY", 0, 3, -1, 1, Q("2.066 in")))
sketch8.addConstraint(Sketcher.Constraint("DistanceY", 2, 2, -1, 1, Q("2.125 in")))
sketch8.addConstraint(Sketcher.Constraint("DistanceX", 0, 3, 1, 3, Q("0.8125 in")))
sketch8.addConstraint(Sketcher.Constraint("DistanceX", 0, 3, 2, 2, Q("0.1875 in")))
sketch8.addConstraint(Sketcher.Constraint("DistanceX", 0, 3, -1, 1, 92.508859))
pocket7 = body.newObject("PartDesign::Pocket", "Pocket006")
pocket7.Profile = sketch8
pocket7.Type = "ThroughAll"

# Sketch on XY plane
sketch9 = body.newObject("Sketcher::SketchObject", "Sketch008")
sketch9.AttachmentSupport = (doc.getObject("XY_Plane"), [""])
sketch9.MapMode = "FlatFace"
sketch9.AttachmentOffset = App.Placement(Vector(0, 0, 0.123 * 25.4), App.Rotation())
sketch9.addGeometry(Part.Circle(Vector(82.1, 9.7, 0), Vector(0, 0, 1), 1.7), False)
sketch9.addGeometry(Part.LineSegment(Vector(70.8, 6, 0), Vector(70.8, -6, 0)), False)
sketch9.addGeometry(Part.LineSegment(Vector(70.8, -6, 0), Vector(93.4, -6, 0)), False)
sketch9.addGeometry(Part.LineSegment(Vector(93.4, -6, 0), Vector(93.4, -2.5, 0)), False)
sketch9.addGeometry(Part.LineSegment(Vector(93.4, -2.5, 0), Vector(95.4, -2.5, 0)), False)
sketch9.addGeometry(Part.LineSegment(Vector(95.4, -2.5, 0), Vector(95.4, 2.5, 0)), False)
sketch9.addGeometry(Part.LineSegment(Vector(95.4, 2.5, 0), Vector(93.4, 2.5, 0)), False)
sketch9.addGeometry(Part.LineSegment(Vector(93.4, 2.5, 0), Vector(93.4, 6, 0)), False)
sketch9.addGeometry(Part.LineSegment(Vector(93.4, 6, 0), Vector(70.8, 6, 0)), False)
sketch9.addGeometry(Part.Circle(Vector(82.1, -9.7, 0), Vector(0, 0, 1), 1.7), False)
sketch9.addConstraint(Sketcher.Constraint("Coincident", 1, 2, 2, 1))
sketch9.addConstraint(Sketcher.Constraint("Coincident", 2, 2, 3, 1))
sketch9.addConstraint(Sketcher.Constraint("Coincident", 3, 2, 4, 1))
sketch9.addConstraint(Sketcher.Constraint("Coincident", 4, 2, 5, 1))
sketch9.addConstraint(Sketcher.Constraint("Coincident", 5, 2, 6, 1))
sketch9.addConstraint(Sketcher.Constraint("Coincident", 6, 2, 7, 1))
sketch9.addConstraint(Sketcher.Constraint("Coincident", 7, 2, 8, 1))
sketch9.addConstraint(Sketcher.Constraint("Coincident", 8, 2, 1, 1))
sketch9.addConstraint(Sketcher.Constraint("Vertical", 1))
sketch9.addConstraint(Sketcher.Constraint("Horizontal", 2))
sketch9.addConstraint(Sketcher.Constraint("Vertical", 3))
sketch9.addConstraint(Sketcher.Constraint("Horizontal", 4))
sketch9.addConstraint(Sketcher.Constraint("Vertical", 5))
sketch9.addConstraint(Sketcher.Constraint("Horizontal", 6))
sketch9.addConstraint(Sketcher.Constraint("Vertical", 7))
sketch9.addConstraint(Sketcher.Constraint("Horizontal", 8))
sketch9.addConstraint(Sketcher.Constraint("Equal", 0, 9))
sketch9.addConstraint(Sketcher.Constraint("Symmetric", 0, 3, 9, 3, -1))
sketch9.addConstraint(Sketcher.Constraint("Symmetric", 3, 2, 6, 2, -1))
sketch9.addConstraint(Sketcher.Constraint("Equal", 3, 7))
sketch9.addConstraint(Sketcher.Constraint("Diameter", 0, Q("0.13 in")))
sketch9.addConstraint(Sketcher.Constraint("DistanceY", 5, 1, 5, 2, Q("0.2 in")))
sketch9.addConstraint(Sketcher.Constraint("DistanceX", 2, 1, 2, 2, Q("0.89 in")))
sketch9.addConstraint(Sketcher.Constraint("DistanceX", 4, 1, 4, 2, Q("0.08 in")))
sketch9.addConstraint(Sketcher.Constraint("DistanceY", 1, 2, 1, 1, Q("0.472 in")))
sketch9.addConstraint(Sketcher.Constraint("DistanceY", -1, 1, 0, 3, Q("0.38 in")))
sketch9.addConstraint(Sketcher.Constraint("DistanceX", -1, 1, 0, 3, Q("3.231 in")))
sketch9.addConstraint(Sketcher.Constraint("DistanceX", -1, 1, 1, 2, Q("2.786 in")))
pocket8 = body.newObject("PartDesign::Pocket", "Pocket007")
pocket8.Profile = sketch9
pocket8.Type = "ThroughAll"

# Sketch on XY plane
sketch10 = body.newObject("Sketcher::SketchObject", "Sketch009")
sketch10.AttachmentSupport = (doc.getObject("XY_Plane"), [""])
sketch10.MapMode = "FlatFace"
sketch10.AttachmentOffset = App.Placement(Vector(0, 0, 0.123 * 25.4), App.Rotation())
sketch10.addGeometry(Part.LineSegment(Vector(-61.6, 63.8, 0), Vector(-84.9, 63.8, 0)), False)
sketch10.addGeometry(Part.ArcOfCircle(Part.Circle(Vector(-84.9, 63, 0), Vector(0, 0, 1), 0.8), math.radians(90), math.radians(180)), False)
sketch10.addGeometry(Part.LineSegment(Vector(-85.7, 63, 0), Vector(-85.7, 52.1, 0)), False)
sketch10.addGeometry(Part.ArcOfCircle(Part.Circle(Vector(-86.5, 52.1, 0), Vector(0, 0, 1), 0.8), math.radians(-90), math.radians(0)), False)
sketch10.addGeometry(Part.LineSegment(Vector(-86.5, 51.3, 0), Vector(-95.7, 51.3, 0)), False)
sketch10.addGeometry(Part.ArcOfCircle(Part.Circle(Vector(-95.7, 50.5, 0), Vector(0, 0, 1), 0.8), math.radians(90), math.radians(180)), False)
sketch10.addGeometry(Part.LineSegment(Vector(-96.5, 50.5, 0), Vector(-96.5, 30.7, 0)), False)
sketch10.addGeometry(Part.ArcOfCircle(Part.Circle(Vector(-95.7, 30.7, 0), Vector(0, 0, 1), 0.8), math.radians(180), math.radians(270)), False)
sketch10.addGeometry(Part.LineSegment(Vector(-95.7, 30, 0), Vector(-61.6, 30, 0)), False)
sketch10.addGeometry(Part.ArcOfCircle(Part.Circle(Vector(-61.6, 30.7, 0), Vector(0, 0, 1), 0.8), math.radians(-90), math.radians(0)), False)
sketch10.addGeometry(Part.LineSegment(Vector(-60.8, 30.7, 0), Vector(-60.8, 63, 0)), False)
sketch10.addGeometry(Part.ArcOfCircle(Part.Circle(Vector(-61.6, 63, 0), Vector(0, 0, 1), 0.8), math.radians(0), math.radians(90)), False)
sketch10.addGeometry(Part.ArcOfCircle(Part.Circle(Vector(-95.2, 63.5, 0), Vector(0, 0, 1), 9.5), math.radians(90), math.radians(129)), False)
sketch10.addGeometry(Part.ArcOfCircle(Part.Circle(Vector(-100.3, 69.7, 0), Vector(0, 0, 1), 1.6), math.radians(0), math.radians(129)), False)
sketch10.addGeometry(Part.LineSegment(Vector(-98.7, 69.7, 0), Vector(-98.7, 67, 0)), False)
sketch10.addGeometry(Part.ArcOfCircle(Part.Circle(Vector(-97.1, 67, 0), Vector(0, 0, 1), 1.6), math.radians(180), math.radians(270)), False)
sketch10.addGeometry(Part.LineSegment(Vector(-97.1, 65.4, 0), Vector(-49.5, 65.4, 0)), False)
sketch10.addGeometry(Part.ArcOfCircle(Part.Circle(Vector(-49.5, 67, 0), Vector(0, 0, 1), 1.6), math.radians(-90), math.radians(0)), False)
sketch10.addGeometry(Part.LineSegment(Vector(-47.9, 67, 0), Vector(-47.9, 71.4, 0)), False)
sketch10.addGeometry(Part.ArcOfCircle(Part.Circle(Vector(-46.3, 71.4, 0), Vector(0, 0, 1), 1.6), math.radians(90), math.radians(180)), False)
sketch10.addGeometry(Part.LineSegment(Vector(-46.3, 73, 0), Vector(-95.2, 73, 0)), False)
sketch10.addGeometry(Part.ArcOfCircle(Part.Circle(Vector(-100.3, -69.7, 0), Vector(0, 0, 1), 1.6), math.radians(-129), math.radians(0)), False)
sketch10.addGeometry(Part.ArcOfCircle(Part.Circle(Vector(-95.2, -63.5, 0), Vector(0, 0, 1), 9.5), math.radians(-129), math.radians(-90)), False)
sketch10.addGeometry(Part.LineSegment(Vector(-95.2, -73, 0), Vector(-46.3, -73, 0)), False)
sketch10.addGeometry(Part.ArcOfCircle(Part.Circle(Vector(-46.3, -71.4, 0), Vector(0, 0, 1), 1.6), math.radians(180), math.radians(270)), False)
sketch10.addGeometry(Part.LineSegment(Vector(-47.9, -71.4, 0), Vector(-47.9, -67, 0)), False)
sketch10.addGeometry(Part.ArcOfCircle(Part.Circle(Vector(-49.5, -67, 0), Vector(0, 0, 1), 1.6), math.radians(0), math.radians(90)), False)
sketch10.addGeometry(Part.LineSegment(Vector(-49.5, -65.4, 0), Vector(-97.1, -65.4, 0)), False)
sketch10.addGeometry(Part.ArcOfCircle(Part.Circle(Vector(-97.1, -67, 0), Vector(0, 0, 1), 1.6), math.radians(90), math.radians(180)), False)
sketch10.addGeometry(Part.LineSegment(Vector(-98.7, -67, 0), Vector(-98.7, -69.7, 0)), False)
sketch10.addConstraint(Sketcher.Constraint("Tangent", 0, 2, 1, 1))
sketch10.addConstraint(Sketcher.Constraint("Tangent", 1, 2, 2, 1))
sketch10.addConstraint(Sketcher.Constraint("Tangent", 2, 2, 3, 2))
sketch10.addConstraint(Sketcher.Constraint("Tangent", 3, 1, 4, 1))
sketch10.addConstraint(Sketcher.Constraint("Tangent", 4, 2, 5, 1))
sketch10.addConstraint(Sketcher.Constraint("Tangent", 5, 2, 6, 1))
sketch10.addConstraint(Sketcher.Constraint("Tangent", 6, 2, 7, 1))
sketch10.addConstraint(Sketcher.Constraint("Tangent", 7, 2, 8, 1))
sketch10.addConstraint(Sketcher.Constraint("Tangent", 8, 2, 9, 1))
sketch10.addConstraint(Sketcher.Constraint("Tangent", 9, 2, 10, 1))
sketch10.addConstraint(Sketcher.Constraint("Tangent", 10, 2, 11, 1))
sketch10.addConstraint(Sketcher.Constraint("Tangent", 11, 2, 0, 1))
sketch10.addConstraint(Sketcher.Constraint("Tangent", 12, 2, 13, 2))
sketch10.addConstraint(Sketcher.Constraint("Tangent", 13, 1, 14, 1))
sketch10.addConstraint(Sketcher.Constraint("Tangent", 14, 2, 15, 1))
sketch10.addConstraint(Sketcher.Constraint("Tangent", 15, 2, 16, 1))
sketch10.addConstraint(Sketcher.Constraint("Tangent", 16, 2, 17, 1))
sketch10.addConstraint(Sketcher.Constraint("Tangent", 17, 2, 18, 1))
sketch10.addConstraint(Sketcher.Constraint("Tangent", 18, 2, 19, 2))
sketch10.addConstraint(Sketcher.Constraint("Tangent", 19, 1, 20, 1))
sketch10.addConstraint(Sketcher.Constraint("Tangent", 20, 2, 12, 1))
sketch10.addConstraint(Sketcher.Constraint("Tangent", 21, 1, 22, 1))
sketch10.addConstraint(Sketcher.Constraint("Tangent", 22, 2, 23, 1))
sketch10.addConstraint(Sketcher.Constraint("Tangent", 23, 2, 24, 2))
sketch10.addConstraint(Sketcher.Constraint("Tangent", 24, 1, 25, 1))
sketch10.addConstraint(Sketcher.Constraint("Tangent", 25, 2, 26, 1))
sketch10.addConstraint(Sketcher.Constraint("Tangent", 26, 2, 27, 1))
sketch10.addConstraint(Sketcher.Constraint("Tangent", 27, 2, 28, 1))
sketch10.addConstraint(Sketcher.Constraint("Tangent", 28, 2, 29, 1))
sketch10.addConstraint(Sketcher.Constraint("Tangent", 29, 2, 21, 2))
sketch10.addConstraint(Sketcher.Constraint("Horizontal", 0))
sketch10.addConstraint(Sketcher.Constraint("Vertical", 2))
sketch10.addConstraint(Sketcher.Constraint("Horizontal", 4))
sketch10.addConstraint(Sketcher.Constraint("Vertical", 6))
sketch10.addConstraint(Sketcher.Constraint("Horizontal", 8))
sketch10.addConstraint(Sketcher.Constraint("Vertical", 10))
sketch10.addConstraint(Sketcher.Constraint("Vertical", 14))
sketch10.addConstraint(Sketcher.Constraint("Horizontal", 16))
sketch10.addConstraint(Sketcher.Constraint("Vertical", 18))
sketch10.addConstraint(Sketcher.Constraint("Horizontal", 20))
sketch10.addConstraint(Sketcher.Constraint("Horizontal", 23))
sketch10.addConstraint(Sketcher.Constraint("Vertical", 25))
sketch10.addConstraint(Sketcher.Constraint("Horizontal", 27))
sketch10.addConstraint(Sketcher.Constraint("Vertical", 29))
sketch10.addConstraint(Sketcher.Constraint("Equal", 1, 3))
sketch10.addConstraint(Sketcher.Constraint("Equal", 3, 5))
sketch10.addConstraint(Sketcher.Constraint("Equal", 5, 7))
sketch10.addConstraint(Sketcher.Constraint("Equal", 7, 9))
sketch10.addConstraint(Sketcher.Constraint("Equal", 9, 11))
sketch10.addConstraint(Sketcher.Constraint("Equal", 13, 15))
sketch10.addConstraint(Sketcher.Constraint("Equal", 15, 17))
sketch10.addConstraint(Sketcher.Constraint("Equal", 17, 19))
sketch10.addConstraint(Sketcher.Constraint("Equal", 19, 21))
sketch10.addConstraint(Sketcher.Constraint("Equal", 12, 22))
sketch10.addConstraint(Sketcher.Constraint("Equal", 21, 24))
sketch10.addConstraint(Sketcher.Constraint("Equal", 24, 26))
sketch10.addConstraint(Sketcher.Constraint("Equal", 26, 28))
sketch10.addConstraint(Sketcher.Constraint("Symmetric", 13, 3, 21, 3, -1))
sketch10.addConstraint(Sketcher.Constraint("Symmetric", 19, 3, 24, 3, -1))
sketch10.addConstraint(Sketcher.Constraint("Equal", 18, 25))
sketch10.addConstraint(Sketcher.Constraint("Radius", 1, Q("0.03125 in")))
sketch10.addConstraint(Sketcher.Constraint("Radius", 12, Q("0.375 in")))
sketch10.addConstraint(Sketcher.Constraint("Radius", 13, Q("0.0625 in")))
sketch10.addConstraint(Sketcher.Constraint("DistanceX", 21, 3, 26, 3, Q("2 in")))
sketch10.addConstraint(Sketcher.Constraint("DistanceY", -1, 1, 12, 3, Q("2.5 in")))
sketch10.addConstraint(Sketcher.Constraint("DistanceX", 5, 2, -1, 1, Q("3.8 in")))
sketch10.addConstraint(Sketcher.Constraint("DistanceX", 12, 3, -1, 1, Q("3.75 in")))
sketch10.addConstraint(Sketcher.Constraint("DistanceY", 7, 3, 3, 3, Q("0.84 in")))
sketch10.addConstraint(Sketcher.Constraint("DistanceX", 3, 3, 9, 3, Q("0.98 in")))
sketch10.addConstraint(Sketcher.Constraint("DistanceY", 5, 3, 15, 3, Q("0.65 in")))
sketch10.addConstraint(Sketcher.Constraint("DistanceX", 13, 1, 1, 2, Q("0.51 in")))
sketch10.addConstraint(Sketcher.Constraint("DistanceX", 4, 2, 4, 1, Q("0.3625 in")))
sketch10.addConstraint(Sketcher.Constraint("DistanceY", 18, 1, 18, 2, Q("0.1745 in")))
sketch10.addConstraint(Sketcher.Constraint("DistanceY", -1, 1, 0, 2, Q("2.513 in")))
pocket9 = body.newObject("PartDesign::Pocket", "Pocket008")
pocket9.Profile = sketch10
pocket9.Type = "ThroughAll"

# Sketch on XY plane
sketch11 = body.newObject("Sketcher::SketchObject", "Sketch010")
sketch11.AttachmentSupport = (doc.getObject("XY_Plane"), [""])
sketch11.MapMode = "FlatFace"
sketch11.AttachmentOffset = App.Placement(Vector(0, 0, 0.123 * 25.4), App.Rotation())
sketch11.addGeometry(Part.Circle(Vector(38.1, 38.1, 0), Vector(0, 0, 1), 1.7), False)
sketch11.addGeometry(Part.Circle(Vector(-38.1, 38.1, 0), Vector(0, 0, 1), 1.7), False)
sketch11.addGeometry(Part.Circle(Vector(-38.1, -38.1, 0), Vector(0, 0, 1), 1.7), False)
sketch11.addGeometry(Part.Circle(Vector(38.1, -38.1, 0), Vector(0, 0, 1), 1.7), False)
sketch11.addConstraint(Sketcher.Constraint("Equal", 0, 1))
sketch11.addConstraint(Sketcher.Constraint("Equal", 1, 2))
sketch11.addConstraint(Sketcher.Constraint("Equal", 2, 3))
sketch11.addConstraint(Sketcher.Constraint("Symmetric", 0, 3, 2, 3, -1, 1))
sketch11.addConstraint(Sketcher.Constraint("Symmetric", 1, 3, 3, 3, -1, 1))
sketch11.addConstraint(Sketcher.Constraint("Symmetric", 0, 3, 1, 3, -2))
sketch11.addConstraint(Sketcher.Constraint("Diameter", 0, Q("0.13 in")))
sketch11.addConstraint(Sketcher.Constraint("DistanceX", 1, 3, 0, 3, Q("3 in")))
sketch11.addConstraint(Sketcher.Constraint("DistanceY", 2, 3, 1, 3, Q("3 in")))
pocket10 = body.newObject("PartDesign::Pocket", "Pocket009")
pocket10.Profile = sketch11
pocket10.Type = "ThroughAll"

doc.recompute()
